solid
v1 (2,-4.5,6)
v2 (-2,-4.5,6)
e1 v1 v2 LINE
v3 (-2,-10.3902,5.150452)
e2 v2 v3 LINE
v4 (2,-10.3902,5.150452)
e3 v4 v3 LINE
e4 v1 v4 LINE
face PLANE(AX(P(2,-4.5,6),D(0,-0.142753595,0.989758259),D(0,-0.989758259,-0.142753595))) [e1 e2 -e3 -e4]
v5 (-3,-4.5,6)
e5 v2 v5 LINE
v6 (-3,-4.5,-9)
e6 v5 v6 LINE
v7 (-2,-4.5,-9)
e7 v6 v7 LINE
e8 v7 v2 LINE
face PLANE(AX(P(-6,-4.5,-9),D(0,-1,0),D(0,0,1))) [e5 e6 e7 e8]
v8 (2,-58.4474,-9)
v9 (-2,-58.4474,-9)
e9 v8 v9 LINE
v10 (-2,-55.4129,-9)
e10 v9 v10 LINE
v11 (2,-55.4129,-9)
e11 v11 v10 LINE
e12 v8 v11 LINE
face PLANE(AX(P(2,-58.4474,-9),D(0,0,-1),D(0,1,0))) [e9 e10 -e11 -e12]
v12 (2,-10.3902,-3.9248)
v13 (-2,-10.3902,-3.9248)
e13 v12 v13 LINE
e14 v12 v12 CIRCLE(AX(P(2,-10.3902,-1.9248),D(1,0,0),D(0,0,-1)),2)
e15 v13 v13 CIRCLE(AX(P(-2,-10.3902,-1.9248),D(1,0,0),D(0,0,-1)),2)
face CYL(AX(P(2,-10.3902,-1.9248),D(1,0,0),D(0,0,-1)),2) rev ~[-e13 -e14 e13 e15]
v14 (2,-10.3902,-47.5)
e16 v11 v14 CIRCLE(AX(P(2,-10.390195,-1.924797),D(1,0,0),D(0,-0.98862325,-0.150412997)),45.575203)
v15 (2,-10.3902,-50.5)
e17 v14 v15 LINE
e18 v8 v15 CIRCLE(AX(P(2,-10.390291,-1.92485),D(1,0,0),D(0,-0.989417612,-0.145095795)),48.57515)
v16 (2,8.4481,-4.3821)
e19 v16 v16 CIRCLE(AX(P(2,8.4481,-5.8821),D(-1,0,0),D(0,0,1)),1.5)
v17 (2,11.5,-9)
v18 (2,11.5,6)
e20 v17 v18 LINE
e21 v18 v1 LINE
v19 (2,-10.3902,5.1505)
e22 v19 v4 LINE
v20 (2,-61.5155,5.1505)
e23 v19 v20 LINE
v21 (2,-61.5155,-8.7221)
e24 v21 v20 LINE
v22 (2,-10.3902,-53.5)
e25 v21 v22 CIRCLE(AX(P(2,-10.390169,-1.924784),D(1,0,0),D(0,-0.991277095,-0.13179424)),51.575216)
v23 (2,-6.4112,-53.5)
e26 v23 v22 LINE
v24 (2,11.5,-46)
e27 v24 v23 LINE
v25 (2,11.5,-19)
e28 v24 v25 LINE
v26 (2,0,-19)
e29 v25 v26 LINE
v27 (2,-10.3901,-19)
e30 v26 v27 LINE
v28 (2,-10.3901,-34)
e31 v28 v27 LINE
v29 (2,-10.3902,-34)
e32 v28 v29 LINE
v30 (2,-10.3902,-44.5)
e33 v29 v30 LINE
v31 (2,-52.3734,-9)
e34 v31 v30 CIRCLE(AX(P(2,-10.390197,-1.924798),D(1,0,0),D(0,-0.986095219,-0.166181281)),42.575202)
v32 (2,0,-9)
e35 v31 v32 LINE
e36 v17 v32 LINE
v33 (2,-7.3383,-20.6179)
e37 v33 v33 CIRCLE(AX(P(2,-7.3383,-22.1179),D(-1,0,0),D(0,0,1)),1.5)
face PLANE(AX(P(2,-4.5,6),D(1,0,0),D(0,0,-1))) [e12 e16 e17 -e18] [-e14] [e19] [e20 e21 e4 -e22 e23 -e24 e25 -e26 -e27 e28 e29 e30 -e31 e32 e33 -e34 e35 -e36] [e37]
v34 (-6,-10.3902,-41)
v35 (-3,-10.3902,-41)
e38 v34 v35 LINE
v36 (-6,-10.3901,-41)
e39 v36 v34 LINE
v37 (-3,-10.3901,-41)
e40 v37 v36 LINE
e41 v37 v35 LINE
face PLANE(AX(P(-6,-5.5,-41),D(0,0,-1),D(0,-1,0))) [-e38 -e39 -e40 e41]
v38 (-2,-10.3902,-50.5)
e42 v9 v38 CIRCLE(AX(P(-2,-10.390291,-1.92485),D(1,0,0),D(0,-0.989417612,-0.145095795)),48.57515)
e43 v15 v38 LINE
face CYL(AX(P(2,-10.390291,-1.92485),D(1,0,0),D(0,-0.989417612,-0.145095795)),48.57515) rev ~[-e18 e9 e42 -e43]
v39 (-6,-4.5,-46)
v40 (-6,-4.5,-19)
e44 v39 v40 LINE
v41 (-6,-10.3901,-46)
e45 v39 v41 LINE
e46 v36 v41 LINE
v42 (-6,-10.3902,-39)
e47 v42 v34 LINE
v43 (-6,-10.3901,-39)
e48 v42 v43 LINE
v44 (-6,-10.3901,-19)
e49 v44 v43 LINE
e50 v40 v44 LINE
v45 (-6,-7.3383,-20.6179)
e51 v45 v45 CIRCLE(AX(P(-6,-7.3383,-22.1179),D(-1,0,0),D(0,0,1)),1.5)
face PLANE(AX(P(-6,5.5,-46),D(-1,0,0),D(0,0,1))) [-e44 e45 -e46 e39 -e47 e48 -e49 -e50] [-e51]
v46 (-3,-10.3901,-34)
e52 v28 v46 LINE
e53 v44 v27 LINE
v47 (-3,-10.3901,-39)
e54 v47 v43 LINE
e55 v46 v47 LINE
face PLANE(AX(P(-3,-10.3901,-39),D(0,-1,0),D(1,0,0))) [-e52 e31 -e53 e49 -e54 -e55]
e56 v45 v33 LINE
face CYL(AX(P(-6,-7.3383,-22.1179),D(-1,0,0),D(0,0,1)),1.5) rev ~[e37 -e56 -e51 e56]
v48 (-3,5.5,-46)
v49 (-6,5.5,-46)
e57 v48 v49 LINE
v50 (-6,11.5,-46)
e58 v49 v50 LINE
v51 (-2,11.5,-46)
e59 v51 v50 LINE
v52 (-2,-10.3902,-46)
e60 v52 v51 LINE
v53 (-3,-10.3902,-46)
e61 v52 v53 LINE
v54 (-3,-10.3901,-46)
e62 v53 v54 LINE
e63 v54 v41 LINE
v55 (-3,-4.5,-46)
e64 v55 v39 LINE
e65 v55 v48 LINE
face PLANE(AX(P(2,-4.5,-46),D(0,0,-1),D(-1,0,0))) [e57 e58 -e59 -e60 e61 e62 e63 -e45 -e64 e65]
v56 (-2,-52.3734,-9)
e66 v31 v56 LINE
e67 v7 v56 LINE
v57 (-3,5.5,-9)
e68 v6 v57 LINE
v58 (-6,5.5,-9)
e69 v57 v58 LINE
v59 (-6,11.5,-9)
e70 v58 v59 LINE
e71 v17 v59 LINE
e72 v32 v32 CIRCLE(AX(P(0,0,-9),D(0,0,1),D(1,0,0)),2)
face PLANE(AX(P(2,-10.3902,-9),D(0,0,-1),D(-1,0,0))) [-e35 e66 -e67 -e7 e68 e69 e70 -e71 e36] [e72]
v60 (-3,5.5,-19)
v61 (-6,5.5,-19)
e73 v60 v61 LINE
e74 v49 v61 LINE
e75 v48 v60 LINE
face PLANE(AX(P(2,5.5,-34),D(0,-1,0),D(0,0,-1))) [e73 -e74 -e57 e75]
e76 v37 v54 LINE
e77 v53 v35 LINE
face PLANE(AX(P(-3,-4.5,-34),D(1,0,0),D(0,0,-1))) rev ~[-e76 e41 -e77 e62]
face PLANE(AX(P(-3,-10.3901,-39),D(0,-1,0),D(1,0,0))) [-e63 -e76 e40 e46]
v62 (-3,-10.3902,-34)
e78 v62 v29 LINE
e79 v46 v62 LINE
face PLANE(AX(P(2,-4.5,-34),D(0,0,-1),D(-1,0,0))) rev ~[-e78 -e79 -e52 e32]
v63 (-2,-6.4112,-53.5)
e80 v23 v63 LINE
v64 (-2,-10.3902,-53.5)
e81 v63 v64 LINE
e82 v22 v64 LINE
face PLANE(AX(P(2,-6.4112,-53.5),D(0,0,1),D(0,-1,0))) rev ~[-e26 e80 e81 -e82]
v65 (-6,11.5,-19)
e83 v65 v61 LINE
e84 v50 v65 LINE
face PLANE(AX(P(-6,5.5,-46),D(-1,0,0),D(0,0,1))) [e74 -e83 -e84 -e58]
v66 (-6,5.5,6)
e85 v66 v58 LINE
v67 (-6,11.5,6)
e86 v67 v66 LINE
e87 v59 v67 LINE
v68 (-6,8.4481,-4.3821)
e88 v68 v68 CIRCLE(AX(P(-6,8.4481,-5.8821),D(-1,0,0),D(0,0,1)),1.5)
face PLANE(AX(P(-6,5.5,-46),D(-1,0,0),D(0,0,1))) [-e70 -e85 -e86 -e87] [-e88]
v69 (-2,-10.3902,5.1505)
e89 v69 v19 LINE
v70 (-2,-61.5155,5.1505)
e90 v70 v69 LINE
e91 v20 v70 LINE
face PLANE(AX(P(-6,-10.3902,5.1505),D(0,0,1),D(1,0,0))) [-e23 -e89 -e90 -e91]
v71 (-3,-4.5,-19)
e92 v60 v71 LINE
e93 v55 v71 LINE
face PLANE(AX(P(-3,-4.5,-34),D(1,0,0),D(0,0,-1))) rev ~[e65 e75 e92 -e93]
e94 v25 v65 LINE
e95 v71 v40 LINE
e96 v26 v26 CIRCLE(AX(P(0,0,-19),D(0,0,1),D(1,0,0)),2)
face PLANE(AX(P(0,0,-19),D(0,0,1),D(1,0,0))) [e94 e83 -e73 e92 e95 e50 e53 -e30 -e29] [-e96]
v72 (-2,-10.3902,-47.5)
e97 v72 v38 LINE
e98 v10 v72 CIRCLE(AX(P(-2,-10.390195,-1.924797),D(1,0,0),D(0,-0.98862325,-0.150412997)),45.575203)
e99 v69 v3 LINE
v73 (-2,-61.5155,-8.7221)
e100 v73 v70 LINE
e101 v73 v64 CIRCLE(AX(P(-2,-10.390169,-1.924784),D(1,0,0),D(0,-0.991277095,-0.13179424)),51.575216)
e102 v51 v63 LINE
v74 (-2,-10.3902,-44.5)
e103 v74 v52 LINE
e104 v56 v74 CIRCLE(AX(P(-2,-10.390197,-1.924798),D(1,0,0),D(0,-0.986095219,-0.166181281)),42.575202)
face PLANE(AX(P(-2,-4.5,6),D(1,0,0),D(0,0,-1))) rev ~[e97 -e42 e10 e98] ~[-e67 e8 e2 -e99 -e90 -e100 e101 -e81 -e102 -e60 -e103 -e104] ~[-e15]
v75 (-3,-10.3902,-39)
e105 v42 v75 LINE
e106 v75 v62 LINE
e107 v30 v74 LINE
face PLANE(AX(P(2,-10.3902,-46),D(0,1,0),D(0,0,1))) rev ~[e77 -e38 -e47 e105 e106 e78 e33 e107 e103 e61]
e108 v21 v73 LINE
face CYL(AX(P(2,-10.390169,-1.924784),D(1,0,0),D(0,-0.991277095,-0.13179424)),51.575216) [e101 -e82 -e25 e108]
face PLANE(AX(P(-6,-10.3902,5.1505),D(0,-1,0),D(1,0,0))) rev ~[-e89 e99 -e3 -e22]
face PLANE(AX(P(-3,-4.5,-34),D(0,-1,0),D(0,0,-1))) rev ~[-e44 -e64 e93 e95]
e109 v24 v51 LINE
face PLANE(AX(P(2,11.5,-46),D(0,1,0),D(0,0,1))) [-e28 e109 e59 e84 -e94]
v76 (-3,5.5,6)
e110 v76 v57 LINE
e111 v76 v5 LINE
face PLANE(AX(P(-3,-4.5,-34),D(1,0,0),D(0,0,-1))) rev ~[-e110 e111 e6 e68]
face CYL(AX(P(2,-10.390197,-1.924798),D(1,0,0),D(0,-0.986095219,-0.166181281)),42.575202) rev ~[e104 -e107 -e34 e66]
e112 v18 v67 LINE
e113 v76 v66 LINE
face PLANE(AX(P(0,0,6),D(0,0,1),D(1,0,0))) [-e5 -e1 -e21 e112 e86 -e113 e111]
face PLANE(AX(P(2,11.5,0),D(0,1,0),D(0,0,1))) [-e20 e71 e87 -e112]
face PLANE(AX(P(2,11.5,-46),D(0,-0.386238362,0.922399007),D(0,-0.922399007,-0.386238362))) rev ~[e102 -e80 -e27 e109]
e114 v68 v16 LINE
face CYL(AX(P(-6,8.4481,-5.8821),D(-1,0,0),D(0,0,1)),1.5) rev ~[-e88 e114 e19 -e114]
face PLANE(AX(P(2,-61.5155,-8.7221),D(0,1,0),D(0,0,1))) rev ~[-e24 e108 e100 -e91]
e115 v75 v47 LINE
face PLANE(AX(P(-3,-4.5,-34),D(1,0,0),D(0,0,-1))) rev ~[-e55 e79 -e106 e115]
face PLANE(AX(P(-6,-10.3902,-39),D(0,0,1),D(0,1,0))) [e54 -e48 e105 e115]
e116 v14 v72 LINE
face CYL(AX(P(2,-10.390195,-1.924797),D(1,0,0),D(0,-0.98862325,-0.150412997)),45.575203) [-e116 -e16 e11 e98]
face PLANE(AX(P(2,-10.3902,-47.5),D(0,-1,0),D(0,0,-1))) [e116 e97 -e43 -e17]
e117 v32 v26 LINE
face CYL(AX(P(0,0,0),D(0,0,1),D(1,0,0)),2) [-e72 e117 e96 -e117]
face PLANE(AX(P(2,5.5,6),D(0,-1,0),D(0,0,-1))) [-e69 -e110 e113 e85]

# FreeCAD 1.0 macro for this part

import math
import FreeCAD as App
import Part
import Sketcher
from FreeCAD import Vector
Q = App.Units.Quantity


def add_polygon(sketch, points):
    """Adds a closed chain of lines whose ends are joined by coincident constraints."""
    first, n = sketch.GeometryCount, len(points)
    for a, b in zip(points, points[1:] + points[:1]):
        sketch.addGeometry(Part.LineSegment(App.Vector(*a, 0), App.Vector(*b, 0)), False)
    for i in range(n):
        sketch.addConstraint(Sketcher.Constraint("Coincident", first + i, 2, first + (i + 1) % n, 1))

doc = App.newDocument("Part")
params = doc.addObject("Spreadsheet::Sheet", "Params")
for row, (alias, value) in enumerate([
    ("sketch1_diameter", "4 mm"),
    ("pad1_length", "40 mm"),
    ("sketch2_height", "9 mm"),
    ("sketch2_width", "5 mm"),
    ("pad2_length", "6 mm"),
    ("sketch3_height", "1 mm"),
    ("sketch3_width", "5 mm"),
    ("pocket1_length", "6 mm"),
    ("sketch4_diameter", "4 mm"),
    ("pocket2_length", "6 mm"),
    ("sketch5_width", "5 mm"),
    ("sketch5_height", "8 mm"),
    ("pad3_length", "12 mm"),
    ("sketch6_width", "5 mm"),
    ("sketch6_height", "12 mm"),
    ("pad4_length", "110 mm"),
    ("sketch7_width", "6 mm"),
    ("sketch7_height", "25 mm"),
    ("sketch7_width2", "8 mm"),
    ("pad5_length", "5 mm"),
    ("sketch8_height", "2 mm"),
    ("sketch8_width", "102 mm"),
    ("sketch9_height", "6 mm"),
    ("sketch9_height2", "5 mm"),
    ("sketch9_height3", "12 mm"),
    ("pad6_length", "3.5 mm"),
    ("sketch10_width", "5 mm"),
    ("sketch10_height", "12 mm"),
    ("sketch10_height2", "6 mm"),
    ("pad7_length", "2 mm"),
    ("sketch11_width", "6 mm"),
    ("sketch11_height", "12 mm"),
    ("pad8_length", "8.5 mm"),
    ("sketch12_width", "6 mm"),
    ("sketch12_height", "12 mm"),
    ("sketch12_height2", "2 mm"),
    ("pocket4_length", "0.5 mm"),
    ("sketch13_width", "8 mm"),
    ("sketch13_width2", "3 mm"),
    ("sketch13_height", "6 mm"),
    ("sketch13_height2", "10 mm"),
    ("pad9_length", "15 mm"),
    ("sketch14_width", "3 mm"),
    ("sketch14_width2", "8 mm"),
    ("sketch14_height", "6 mm"),
    ("sketch14_height2", "10 mm"),
    ("pad10_length", "9 mm"),
    ("sketch15_width", "8 mm"),
    ("sketch15_width2", "3 mm"),
    ("sketch15_height", "20 mm"),
    ("pocket5_length", "4.2273 mm"),
    ("sketch16_height", "2 mm"),
    ("pad11_length", "8 mm"),
    ("sketch17_height", "52 mm"),
    ("sketch17_height2", "5 mm"),
    ("sketch17_height3", "2 mm"),
    ("sketch18_width", "8 mm"),
    ("pad12_length", "40 mm"),
    ("sketch19_width", "40 mm"),
    ("pocket7_length", "2 mm"),
    ("sketch20_height", "6 mm"),
    ("sketch20_height2", "3 mm"),
    ("pad13_length", "4 mm"),
    ("sketch21_height", "1.5 mm"),
    ("pad14_length", "4 mm"),
    ("sketch22_height", "7.5 mm"),
    ("pad15_length", "4 mm"),
    ("sketch23_diameter", "3 mm"),
    ("sketch24_diameter", "4 mm"),
    ("sketch25_radius", "2 mm"),
    ("pocket10_length", "2 mm"),
    ("sketch26_width", "40 mm"),
    ("pocket11_length", "2 mm"),
    ("sketch27_height", "15 mm"),
    ("pocket12_length", "4 mm"),
], start=1):
    params.set(f"A{row}", alias)
    params.set(f"B{row}", "=" + value)
    params.setAlias(f"B{row}", alias)

body = doc.addObject("PartDesign::Body", "Body")

sketch1 = body.newObject("Sketcher::SketchObject", "Sketch")
sketch1.AttachmentSupport = (doc.getObject("XY_Plane"), [""])
sketch1.MapMode = "FlatFace"
sketch1.addGeometry(Part.Circle(Vector(0, 0, 0), Vector(0, 0, 1), 2), False)
sketch1.addConstraint([
    Sketcher.Constraint("Coincident", 0, 3, -1, 1),
    Sketcher.Constraint("Diameter", 0, 4.0),
])
sketch1.setExpression("Constraints[1]", "Params.sketch1_diameter")
pad1 = body.newObject("PartDesign::Pad", "Pad")
pad1.Profile = sketch1
pad1.setExpression("Length", "Params.pad1_length")
pad1.Reversed = True

sketch2 = body.newObject("Sketcher::SketchObject", "Sketch001")
sketch2.AttachmentSupport = (doc.getObject("XY_Plane"), [""])
sketch2.MapMode = "FlatFace"
add_polygon(sketch2, [(2, -4), (2, 4), (-3, 4), (-3, -4)])
sketch2.addConstraint([
    Sketcher.Constraint("Vertical", 0),
    Sketcher.Constraint("Horizontal", 1),
    Sketcher.Constraint("Vertical", 2),
    Sketcher.Constraint("Horizontal", 3),
    Sketcher.Constraint("DistanceY", 0, 1, 0, 2, 9.0),
    Sketcher.Constraint("DistanceX", 1, 2, -1, 1, 3.0),
    Sketcher.Constraint("DistanceY", -1, 1, 0, 2, 4.5),
    Sketcher.Constraint("DistanceX", 1, 2, 1, 1, 5.0),
])
sketch2.setExpression("Constraints[8]", "Params.sketch2_height")
sketch2.setExpression("Constraints[11]", "Params.sketch2_width")
pad2 = body.newObject("PartDesign::Pad", "Pad001")
pad2.Profile = sketch2
pad2.setExpression("Length", "Params.pad2_length")

sketch3 = body.newObject("Sketcher::SketchObject", "Sketch002")
sketch3.AttachmentSupport = (doc.getObject("XY_Plane"), [""])
sketch3.MapMode = "FlatFace"
sketch3.AttachmentOffset = App.Placement(Vector(0, 0, 6), App.Rotation())
add_polygon(sketch3, [(-3, 3.5), (2, 3.5), (2, 4.5), (-3, 4.5)])
sketch3.addConstraint([
    Sketcher.Constraint("Horizontal", 0),
    Sketcher.Constraint("Vertical", 1),
    Sketcher.Constraint("Horizontal", 2),
    Sketcher.Constraint("Vertical", 3),
    Sketcher.Constraint("DistanceY", 1, 1, 1, 2, 1.0),
    Sketcher.Constraint("DistanceX", 0, 1, 0, 2, 5.0),
    Sketcher.Constraint("DistanceX", -1, 1, 0, 2, 2.0),
    Sketcher.Constraint("DistanceY", -1, 1, 0, 2, 3.5),
])
sketch3.setExpression("Constraints[8]", "Params.sketch3_height")
sketch3.setExpression("Constraints[9]", "Params.sketch3_width")
pocket1 = body.newObject("PartDesign::Pocket", "Pocket")
pocket1.Profile = sketch3
pocket1.setExpression("Length", "Params.pocket1_length")

sketch4 = body.newObject("Sketcher::SketchObject", "Sketch003")
sketch4.AttachmentSupport = (doc.getObject("XY_Plane"), [""])
sketch4.MapMode = "FlatFace"
sketch4.AttachmentOffset = App.Placement(Vector(0, 0, -40), App.Rotation())
sketch4.addGeometry(Part.Circle(Vector(0, 0, 0), Vector(0, 0, 1), 2), False)
sketch4.addConstraint([
    Sketcher.Constraint("Coincident", 0, 3, -1, 1),
    Sketcher.Constraint("Diameter", 0, 4.0),
])
sketch4.setExpression("Constraints[1]", "Params.sketch4_diameter")
pocket2 = body.newObject("PartDesign::Pocket", "Pocket001")
pocket2.Profile = sketch4
pocket2.setExpression("Length", "Params.pocket2_length")
pocket2.Reversed = True

sketch5 = body.newObject("Sketcher::SketchObject", "Sketch004")
sketch5.AttachmentSupport = (doc.getObject("XY_Plane"), [""])
sketch5.MapMode = "FlatFace"
sketch5.AttachmentOffset = App.Placement(Vector(0, 0, -34), App.Rotation())
add_polygon(sketch5, [(-3, -4), (-3, 4), (2, 4), (2, -4)])
sketch5.addConstraint([
    Sketcher.Constraint("Vertical", 0),
    Sketcher.Constraint("Horizontal", 1),
    Sketcher.Constraint("Vertical", 2),
    Sketcher.Constraint("Horizontal", 3),
    Sketcher.Constraint("DistanceX", 1, 1, 1, 2, 5.0),
    Sketcher.Constraint("DistanceY", 0, 1, 0, 2, 8.0),
    Sketcher.Constraint("DistanceX", 0, 2, -1, 1, 3.0),
    Sketcher.Constraint("DistanceY", -1, 1, 0, 2, 3.5),
])
sketch5.setExpression("Constraints[8]", "Params.sketch5_width")
sketch5.setExpression("Constraints[9]", "Params.sketch5_height")
pad3 = body.newObject("PartDesign::Pad", "Pad002")
pad3.Profile = sketch5
pad3.setExpression("Length", "Params.pad3_length")
pad3.Reversed = True

sketch6 = body.newObject("Sketcher::SketchObject", "Sketch005")
sketch6.AttachmentSupport = (doc.getObject("XZ_Plane"), [""])
sketch6.MapMode = "FlatFace"
sketch6.AttachmentOffset = App.Placement(Vector(0, 0, 4.5), App.Rotation())
add_polygon(sketch6, [(2, -46), (2, -34), (-3, -34), (-3, -46)])
sketch6.addConstraint([
    Sketcher.Constraint("Vertical", 0),
    Sketcher.Constraint("Horizontal", 1),
    Sketcher.Constraint("Vertical", 2),
    Sketcher.Constraint("Horizontal", 3),
    Sketcher.Constraint("DistanceX", 1, 2, 1, 1, 5.0),
    Sketcher.Constraint("DistanceY", 0, 1, 0, 2, 12.0),
    Sketcher.Constraint("DistanceX", -1, 1, 0, 2, 2.0),
    Sketcher.Constraint("DistanceY", 0, 2, -1, 1, 34.0),
])
sketch6.setExpression("Constraints[8]", "Params.sketch6_width")
sketch6.setExpression("Constraints[9]", "Params.sketch6_height")
pad4 = body.newObject("PartDesign::Pad", "Pad003")
pad4.Profile = sketch6
pad4.setExpression("Length", "Params.pad4_length")

sketch7 = body.newObject("Sketcher::SketchObject", "Sketch006")
sketch7.AttachmentSupport = (doc.getObject("YZ_Plane"), [""])
sketch7.MapMode = "FlatFace"
sketch7.AttachmentOffset = App.Placement(Vector(0, 0, 2), App.Rotation())
add_polygon(sketch7, [(-114, -34), (-108, -34), (-108, -15), (-4, 0), (4, 0), (4, 6), (-4, 6), (-108, -9), (-114, -9)])
sketch7.addConstraint([
    Sketcher.Constraint("Horizontal", 0),
    Sketcher.Constraint("Vertical", 1),
    Sketcher.Constraint("Horizontal", 3),
    Sketcher.Constraint("Vertical", 4),
    Sketcher.Constraint("Horizontal", 5),
    Sketcher.Constraint("Horizontal", 7),
    Sketcher.Constraint("Vertical", 8),
    Sketcher.Constraint("PointOnObject", 2, 2, -1),
    Sketcher.Constraint("Parallel", 2, 6),
    Sketcher.Constraint("Vertical", 2, 2, 5, 2),
    Sketcher.Constraint("Vertical", 1, 2, 6, 2),
    Sketcher.Constraint("Equal", 7, 4),
    Sketcher.Constraint("DistanceX", 0, 1, 0, 2, 6.0),
    Sketcher.Constraint("DistanceY", 8, 2, 8, 1, 25.0),
    Sketcher.Constraint("DistanceX", 3, 1, 3, 2, 8.0),
    Sketcher.Constraint("DistanceY", 0, 2, -1, 1, 34.0),
    Sketcher.Constraint("DistanceX", 1, 2, 2, 2, 104.0),
    Sketcher.Constraint("DistanceX", 0, 2, -1, 1, 108.5),
])
sketch7.setExpression("Constraints[21]", "Params.sketch7_width")
sketch7.setExpression("Constraints[22]", "Params.sketch7_height")
sketch7.setExpression("Constraints[23]", "Params.sketch7_width2")
pad5 = body.newObject("PartDesign::Pad", "Pad004")
pad5.Profile = sketch7
pad5.setExpression("Length", "Params.pad5_length")
pad5.Reversed = True

sketch8 = body.newObject("Sketcher::SketchObject", "Sketch007")
sketch8.AttachmentSupport = (doc.getObject("YZ_Plane"), [""])
sketch8.MapMode = "FlatFace"
sketch8.AttachmentOffset = App.Placement(Vector(0, 0, 2), App.Rotation())
add_polygon(sketch8, [(-6.5, -41), (-6.5, -39), (-108.5, -39), (-108.5, -41)])
sketch8.addConstraint([
    Sketcher.Constraint("Vertical", 0),
    Sketcher.Constraint("Horizontal", 1),
    Sketcher.Constraint("Vertical", 2),
    Sketcher.Constraint("Horizontal", 3),
    Sketcher.Constraint("DistanceY", 0, 1, 0, 2, 2.0),
    Sketcher.Constraint("DistanceX", 1, 2, 1, 1, 102.0),
    Sketcher.Constraint("DistanceY", 0, 2, -1, 1, 39.0),
    Sketcher.Constraint("DistanceX", 0, 2, -1, 1, 6.5),
])
sketch8.setExpression("Constraints[8]", "Params.sketch8_height")
sketch8.setExpression("Constraints[9]", "Params.sketch8_width")
pocket3 = body.newObject("PartDesign::Pocket", "Pocket002")
pocket3.Profile = sketch8
pocket3.Type = "ThroughAll"

sketch9 = body.newObject("Sketcher::SketchObject", "Sketch008")
sketch9.AttachmentSupport = (doc.getObject("YZ_Plane"), [""])
sketch9.MapMode = "FlatFace"
sketch9.AttachmentOffset = App.Placement(Vector(0, 0, -3), App.Rotation())
add_polygon(sketch9, [(-10.4, 5.2), (-4.5, 6), (-4.5, 0), (-10.4, -0.8)])
add_polygon(sketch9, [(-14.6, -39), (-14.6, -34), (-4.5, -34), (-4.5, -46), (-14.6, -46), (-14.6, -41), (-5.5, -41), (-5.5, -39)])
sketch9.addConstraint([
    Sketcher.Constraint("Vertical", 1),
    Sketcher.Constraint("Vertical", 3),
    Sketcher.Constraint("Vertical", 4),
    Sketcher.Constraint("Horizontal", 5),
    Sketcher.Constraint("Vertical", 6),
    Sketcher.Constraint("Horizontal", 7),
    Sketcher.Constraint("Vertical", 8),
    Sketcher.Constraint("Horizontal", 9),
    Sketcher.Constraint("Vertical", 10),
    Sketcher.Constraint("Horizontal", 11),
    Sketcher.Constraint("PointOnObject", 1, 2, -1),
    Sketcher.Constraint("Parallel", 0, 2),
    Sketcher.Constraint("Vertical", 1, 2, 5, 2),
    Sketcher.Constraint("Vertical", 4, 2, 7, 2),
    Sketcher.Constraint("Equal", 4, 8),
    Sketcher.Constraint("DistanceY", 1, 2, 1, 1, 6.0),
    Sketcher.Constraint("DistanceY", 4, 1, 4, 2, 5.0),
    Sketcher.Constraint("DistanceY", 6, 2, 6, 1, 12.0),
    Sketcher.Constraint("DistanceY", 4, 2, -1, 1, 34.0),
    Sketcher.Constraint("DistanceX", 9, 2, 6, 2, 1.0),
    Sketcher.Constraint("DistanceX", 0, 2, -1, 1, 4.5),
    Sketcher.Constraint("DistanceX", 5, 1, 5, 2, 10.1174),
    Sketcher.Constraint("Distance", 0, 5.9511),
    Sketcher.Constraint("DistanceX", 2, 2, -1, 1, 10.3902),
])
sketch9.setExpression("Constraints[27]", "Params.sketch9_height")
sketch9.setExpression("Constraints[28]", "Params.sketch9_height2")
sketch9.setExpression("Constraints[29]", "Params.sketch9_height3")
pad6 = body.newObject("PartDesign::Pad", "Pad005")
pad6.Profile = sketch9
pad6.setExpression("Length", "Params.pad6_length")
pad6.Reversed = True

sketch10 = body.newObject("Sketcher::SketchObject", "Sketch009")
sketch10.AttachmentSupport = (doc.getObject("XZ_Plane"), [""])
sketch10.MapMode = "FlatFace"
sketch10.AttachmentOffset = App.Placement(Vector(0, 0, -3.5), App.Rotation())
add_polygon(sketch10, [(-3, -46), (-3, -34), (2, -34), (2, -46)])
add_polygon(sketch10, [(-3, 6), (2, 6), (2, 0), (-3, 0)])
sketch10.addConstraint([
    Sketcher.Constraint("Vertical", 0),
    Sketcher.Constraint("Horizontal", 1),
    Sketcher.Constraint("Vertical", 2),
    Sketcher.Constraint("Horizontal", 3),
    Sketcher.Constraint("Horizontal", 4),
    Sketcher.Constraint("Vertical", 5),
    Sketcher.Constraint("Horizontal", 6),
    Sketcher.Constraint("Vertical", 7),
    Sketcher.Constraint("PointOnObject", 5, 2, -1),
    Sketcher.Constraint("Vertical", 2, 2, 4, 2),
    Sketcher.Constraint("Vertical", 3, 2, 6, 2),
    Sketcher.Constraint("DistanceX", 1, 1, 1, 2, 5.0),
    Sketcher.Constraint("DistanceY", 0, 1, 0, 2, 12.0),
    Sketcher.Constraint("DistanceY", 5, 2, 5, 1, 6.0),
    Sketcher.Constraint("DistanceX", 0, 2, -1, 1, 3.0),
    Sketcher.Constraint("DistanceY", 0, 2, -1, 1, 34.0),
])
sketch10.setExpression("Constraints[19]", "Params.sketch10_width")
sketch10.setExpression("Constraints[20]", "Params.sketch10_height")
sketch10.setExpression("Constraints[21]", "Params.sketch10_height2")
pad7 = body.newObject("PartDesign::Pad", "Pad006")
pad7.Profile = sketch10
pad7.setExpression("Length", "Params.pad7_length")
pad7.Reversed = True

sketch11 = body.newObject("Sketcher::SketchObject", "Sketch010")
sketch11.AttachmentSupport = (doc.getObject("YZ_Plane"), [""])
sketch11.MapMode = "FlatFace"
sketch11.AttachmentOffset = App.Placement(Vector(0, 0, 2), App.Rotation())
add_polygon(sketch11, [(12, 6), (6, 6), (6, 0), (12, 0)])
add_polygon(sketch11, [(6, -34), (6, -46), (12, -46), (12, -34)])
sketch11.addConstraint([
    Sketcher.Constraint("Horizontal", 0),
    Sketcher.Constraint("Vertical", 1),
    Sketcher.Constraint("Horizontal", 2),
    Sketcher.Constraint("Vertical", 3),
    Sketcher.Constraint("Vertical", 4),
    Sketcher.Constraint("Horizontal", 5),
    Sketcher.Constraint("Vertical", 6),
    Sketcher.Constraint("Horizontal", 7),
    Sketcher.Constraint("PointOnObject", 1, 2, -1),
    Sketcher.Constraint("Vertical", 1, 2, 4, 2),
    Sketcher.Constraint("Vertical", 3, 2, 5, 2),
    Sketcher.Constraint("Equal", 7, 1),
    Sketcher.Constraint("DistanceX", 0, 2, 0, 1, 6.0),
    Sketcher.Constraint("DistanceY", 4, 2, 4, 1, 12.0),
    Sketcher.Constraint("DistanceY", 4, 2, -1, 1, 46.0),
    Sketcher.Constraint("DistanceX", -1, 1, 0, 2, 5.5),
])
sketch11.setExpression("Constraints[20]", "Params.sketch11_width")
sketch11.setExpression("Constraints[21]", "Params.sketch11_height")
pad8 = body.newObject("PartDesign::Pad", "Pad007")
pad8.Profile = sketch11
pad8.setExpression("Length", "Params.pad8_length")
pad8.Reversed = True

sketch12 = body.newObject("Sketcher::SketchObject", "Sketch011")
sketch12.AttachmentSupport = (doc.getObject("YZ_Plane"), [""])
sketch12.MapMode = "FlatFace"
sketch12.AttachmentOffset = App.Placement(Vector(0, 0, -6.5), App.Rotation())
add_polygon(sketch12, [(11.5, -46), (5.5, -46), (5.5, -34), (11.5, -34)])
add_polygon(sketch12, [(-14.6, -41), (-5.5, -41), (-5.5, -39), (-14.6, -39), (-14.6, -34), (-4.5, -34), (-4.5, -46), (-14.6, -46)])
add_polygon(sketch12, [(-10.4, 5.2), (-4.5, 6), (-4.5, 0), (-10.4, -0.8)])
add_polygon(sketch12, [(11.5, 0), (5.5, 0), (5.5, 6), (11.5, 6)])
sketch12.addConstraint([
    Sketcher.Constraint("Horizontal", 0),
    Sketcher.Constraint("Vertical", 1),
    Sketcher.Constraint("Horizontal", 2),
    Sketcher.Constraint("Vertical", 3),
    Sketcher.Constraint("Horizontal", 4),
    Sketcher.Constraint("Vertical", 5),
    Sketcher.Constraint("Horizontal", 6),
    Sketcher.Constraint("Vertical", 7),
    Sketcher.Constraint("Horizontal", 8),
    Sketcher.Constraint("Vertical", 9),
    Sketcher.Constraint("Horizontal", 10),
    Sketcher.Constraint("Vertical", 11),
    Sketcher.Constraint("Vertical", 13),
    Sketcher.Constraint("Vertical", 15),
    Sketcher.Constraint("Horizontal", 16),
    Sketcher.Constraint("Vertical", 17),
    Sketcher.Constraint("Horizontal", 18),
    Sketcher.Constraint("Vertical", 19),
    Sketcher.Constraint("PointOnObject", 13, 2, -1),
    Sketcher.Constraint("PointOnObject", 16, 2, -1),
    Sketcher.Constraint("Parallel", 12, 14),
    Sketcher.Constraint("Horizontal", 2, 2, 7, 2),
    Sketcher.Constraint("Horizontal", 3, 2, 9, 2),
    Sketcher.Constraint("Horizontal", 12, 2, 17, 2),
    Sketcher.Constraint("Vertical", 7, 2, 10, 2),
    Sketcher.Constraint("Vertical", 9, 2, 12, 2),
    Sketcher.Constraint("Vertical", 1, 2, 16, 2),
    Sketcher.Constraint("Vertical", 3, 2, 18, 2),
    Sketcher.Constraint("Equal", 7, 11),
    Sketcher.Constraint("Equal", 18, 13),
    Sketcher.Constraint("DistanceX", 0, 2, 0, 1, 6.0),
    Sketcher.Constraint("DistanceY", 1, 1, 1, 2, 12.0),
    Sketcher.Constraint("DistanceY", 5, 1, 5, 2, 2.0),
    Sketcher.Constraint("DistanceY", 0, 2, -1, 1, 46.0),
    Sketcher.Constraint("DistanceX", 4, 2, 0, 2, 11.0),
    Sketcher.Constraint("DistanceX", 5, 2, 8, 2, 1.0),
    Sketcher.Constraint("DistanceX", -1, 1, 0, 2, 5.5),
    Sketcher.Constraint("DistanceX", 4, 1, 4, 2, 9.1174),
    Sketcher.Constraint("Distance", 12, 5.9511),
    Sketcher.Constraint("DistanceX", 14, 2, -1, 1, 10.3902),
])
sketch12.setExpression("Constraints[50]", "Params.sketch12_width")
sketch12.setExpression("Constraints[51]", "Params.sketch12_height")
sketch12.setExpression("Constraints[52]", "Params.sketch12_height2")
pocket4 = body.newObject("PartDesign::Pocket", "Pocket003")
pocket4.Profile = sketch12
pocket4.setExpression("Length", "Params.pocket4_length")
pocket4.Reversed = True

sketch13 = body.newObject("Sketcher::SketchObject", "Sketch012")
sketch13.AttachmentSupport = (doc.getObject("XY_Plane"), [""])
sketch13.MapMode = "FlatFace"
sketch13.AttachmentOffset = App.Placement(Vector(0, 0, -34), App.Rotation())
add_polygon(sketch13, [(2, 11.5), (-6, 11.5), (-6, 5.5), (-3, 5.5), (-3, -4.5), (-6, -4.5), (-6, -14.6), (2, -14.6)])
sketch13.addConstraint([
    Sketcher.Constraint("Horizontal", 0),
    Sketcher.Constraint("Vertical", 1),
    Sketcher.Constraint("Horizontal", 2),
    Sketcher.Constraint("Vertical", 3),
    Sketcher.Constraint("Horizontal", 4),
    Sketcher.Constraint("Vertical", 5),
    Sketcher.Constraint("Horizontal", 6),
    Sketcher.Constraint("Vertical", 7),
    Sketcher.Constraint("Vertical", 1, 2, 4, 2),
    Sketcher.Constraint("DistanceX", 0, 2, 0, 1, 8.0),
    Sketcher.Constraint("DistanceX", 2, 1, 2, 2, 3.0),
    Sketcher.Constraint("DistanceY", 1, 2, 1, 1, 6.0),
    Sketcher.Constraint("DistanceY", 3, 2, 3, 1, 10.0),
    Sketcher.Constraint("DistanceX", 0, 2, -1, 1, 6.0),
    Sketcher.Constraint("DistanceY", -1, 1, 0, 2, 11.5),
    Sketcher.Constraint("DistanceY", 5, 2, 5, 1, 10.1174),
])
sketch13.setExpression("Constraints[17]", "Params.sketch13_width")
sketch13.setExpression("Constraints[18]", "Params.sketch13_width2")
sketch13.setExpression("Constraints[19]", "Params.sketch13_height")
sketch13.setExpression("Constraints[20]", "Params.sketch13_height2")
pad9 = body.newObject("PartDesign::Pad", "Pad008")
pad9.Profile = sketch13
pad9.setExpression("Length", "Params.pad9_length")

sketch14 = body.newObject("Sketcher::SketchObject", "Sketch013")
sketch14.AttachmentSupport = (doc.getObject("XY_Plane"), [""])
sketch14.MapMode = "FlatFace"
add_polygon(sketch14, [(-3, 5.5), (-6, 5.5), (-6, 11.5), (2, 11.5), (2, -10.4), (-6, -10.4), (-6, -4.5), (-3, -4.5)])
sketch14.addConstraint([
    Sketcher.Constraint("Horizontal", 0),
    Sketcher.Constraint("Vertical", 1),
    Sketcher.Constraint("Horizontal", 2),
    Sketcher.Constraint("Vertical", 3),
    Sketcher.Constraint("Horizontal", 4),
    Sketcher.Constraint("Vertical", 5),
    Sketcher.Constraint("Horizontal", 6),
    Sketcher.Constraint("Vertical", 7),
    Sketcher.Constraint("Vertical", 1, 2, 4, 2),
    Sketcher.Constraint("DistanceX", 0, 2, 0, 1, 3.0),
    Sketcher.Constraint("DistanceX", 2, 1, 2, 2, 8.0),
    Sketcher.Constraint("DistanceY", 1, 1, 1, 2, 6.0),
    Sketcher.Constraint("DistanceY", 7, 1, 7, 2, 10.0),
    Sketcher.Constraint("DistanceX", 0, 2, -1, 1, 6.0),
    Sketcher.Constraint("DistanceY", -1, 1, 0, 2, 5.5),
    Sketcher.Constraint("DistanceY", 3, 2, 3, 1, 21.8902),
])
sketch14.setExpression("Constraints[17]", "Params.sketch14_width")
sketch14.setExpression("Constraints[18]", "Params.sketch14_width2")
sketch14.setExpression("Constraints[19]", "Params.sketch14_height")
sketch14.setExpression("Constraints[20]", "Params.sketch14_height2")
pad10 = body.newObject("PartDesign::Pad", "Pad009")
pad10.Profile = sketch14
pad10.setExpression("Length", "Params.pad10_length")
pad10.Reversed = True

sketch15 = body.newObject("Sketcher::SketchObject", "Sketch014")
sketch15.AttachmentSupport = (doc.getObject("XZ_Plane"), [""])
sketch15.MapMode = "FlatFace"
sketch15.AttachmentOffset = App.Placement(Vector(0, 0, 14.6174), App.Rotation())
add_polygon(sketch15, [(2, -19), (-6, -19), (-6, -39), (-3, -39), (-3, -34), (2, -34)])
add_polygon(sketch15, [(-3, -41), (-6, -41), (-6, -46), (-3, -46)])
sketch15.addConstraint([
    Sketcher.Constraint("Horizontal", 0),
    Sketcher.Constraint("Vertical", 1),
    Sketcher.Constraint("Horizontal", 2),
    Sketcher.Constraint("Vertical", 3),
    Sketcher.Constraint("Horizontal", 4),
    Sketcher.Constraint("Vertical", 5),
    Sketcher.Constraint("Horizontal", 6),
    Sketcher.Constraint("Vertical", 7),
    Sketcher.Constraint("Horizontal", 8),
    Sketcher.Constraint("Vertical", 9),
    Sketcher.Constraint("Vertical", 1, 2, 6, 2),
    Sketcher.Constraint("Vertical", 3, 2, 8, 2),
    Sketcher.Constraint("Equal", 4, 3),
    Sketcher.Constraint("Equal", 3, 7),
    Sketcher.Constraint("DistanceX", 0, 2, 0, 1, 8.0),
    Sketcher.Constraint("DistanceX", 2, 1, 2, 2, 3.0),
    Sketcher.Constraint("DistanceY", 1, 2, 1, 1, 20.0),
    Sketcher.Constraint("DistanceX", 0, 2, -1, 1, 6.0),
    Sketcher.Constraint("DistanceY", 0, 2, -1, 1, 19.0),
    Sketcher.Constraint("DistanceY", 6, 2, -1, 1, 41.0),
])
sketch15.setExpression("Constraints[24]", "Params.sketch15_width")
sketch15.setExpression("Constraints[25]", "Params.sketch15_width2")
sketch15.setExpression("Constraints[26]", "Params.sketch15_height")
pocket5 = body.newObject("PartDesign::Pocket", "Pocket004")
pocket5.Profile = sketch15
pocket5.setExpression("Length", "Params.pocket5_length")

sketch16 = body.newObject("Sketcher::SketchObject", "Sketch015")
sketch16.AttachmentSupport = (doc.getObject("YZ_Plane"), [""])
sketch16.MapMode = "FlatFace"
sketch16.AttachmentOffset = App.Placement(Vector(0, 0, -6), App.Rotation())
add_polygon(sketch16, [(-5.5, -41), (-10.4, -41), (-10.4, -39), (-5.5, -39)])
sketch16.addConstraint([
    Sketcher.Constraint("Horizontal", 0),
    Sketcher.Constraint("Vertical", 1),
    Sketcher.Constraint("Horizontal", 2),
    Sketcher.Constraint("Vertical", 3),
    Sketcher.Constraint("DistanceY", 1, 1, 1, 2, 2.0),
    Sketcher.Constraint("DistanceY", 0, 2, -1, 1, 41.0),
    Sketcher.Constraint("DistanceX", 2, 2, -1, 1, 5.5),
    Sketcher.Constraint("DistanceX", 0, 2, 0, 1, 4.8902),
])
sketch16.setExpression("Constraints[8]", "Params.sketch16_height")
pad11 = body.newObject("PartDesign::Pad", "Pad010")
pad11.Profile = sketch16
pad11.setExpression("Length", "Params.pad11_length")

sketch17 = body.newObject("Sketcher::SketchObject", "Sketch016")
sketch17.AttachmentSupport = (doc.getObject("YZ_Plane"), [""])
sketch17.MapMode = "FlatFace"
sketch17.AttachmentOffset = App.Placement(Vector(0, 0, 2), App.Rotation())
add_polygon(sketch17, [(-10.4, 6), (-114.5, 6), (-114.5, -46), (-10.4, -46), (-10.4, -41), (-108.5, -41), (-108.5, -39), (-10.4, -39)])
sketch17.addConstraint([
    Sketcher.Constraint("Horizontal", 0),
    Sketcher.Constraint("Vertical", 1),
    Sketcher.Constraint("Horizontal", 2),
    Sketcher.Constraint("Vertical", 3),
    Sketcher.Constraint("Horizontal", 4),
    Sketcher.Constraint("Vertical", 5),
    Sketcher.Constraint("Horizontal", 6),
    Sketcher.Constraint("Vertical", 7),
    Sketcher.Constraint("Vertical", 3, 2, 6, 2),
    Sketcher.Constraint("DistanceY", 1, 2, 1, 1, 52.0),
    Sketcher.Constraint("DistanceY", 3, 1, 3, 2, 5.0),
    Sketcher.Constraint("DistanceY", 5, 1, 5, 2, 2.0),
    Sketcher.Constraint("DistanceY", -1, 1, 0, 2, 6.0),
    Sketcher.Constraint("DistanceX", 1, 2, 4, 2, 6.0),
    Sketcher.Constraint("DistanceX", 0, 2, -1, 1, 114.5),
    Sketcher.Constraint("DistanceX", 0, 2, 0, 1, 104.1098),
])
sketch17.setExpression("Constraints[17]", "Params.sketch17_height")
sketch17.setExpression("Constraints[18]", "Params.sketch17_height2")
sketch17.setExpression("Constraints[19]", "Params.sketch17_height3")
pocket6 = body.newObject("PartDesign::Pocket", "Pocket005")
pocket6.Profile = sketch17
pocket6.Type = "ThroughAll"

sketch18 = body.newObject("Sketcher::SketchObject", "Sketch017")
sketch18.AttachmentSupport = (doc.getObject("XZ_Plane"), [""])
sketch18.MapMode = "FlatFace"
sketch18.AttachmentOffset = App.Placement(Vector(0, 0, 10.3902), App.Rotation())
add_polygon(sketch18, [(2, 5), (-6, 5), (-6, -9), (2, -9)])
sketch18.addConstraint([
    Sketcher.Constraint("Horizontal", 0),
    Sketcher.Constraint("Vertical", 1),
    Sketcher.Constraint("Horizontal", 2),
    Sketcher.Constraint("Vertical", 3),
    Sketcher.Constraint("DistanceX", 0, 2, 0, 1, 8.0),
    Sketcher.Constraint("DistanceX", 0, 2, -1, 1, 6.0),
    Sketcher.Constraint("DistanceY", 1, 2, -1, 1, 9.0),
    Sketcher.Constraint("DistanceY", 1, 2, 1, 1, 14.1505),
])
sketch18.setExpression("Constraints[8]", "Params.sketch18_width")
pad12 = body.newObject("PartDesign::Pad", "Pad011")
pad12.Profile = sketch18
pad12.setExpression("Length", "Params.pad12_length")

sketch19 = body.newObject("Sketcher::SketchObject", "Sketch018")
sketch19.AttachmentSupport = (doc.getObject("YZ_Plane"), [""])
sketch19.MapMode = "FlatFace"
sketch19.AttachmentOffset = App.Placement(Vector(0, 0, -6), App.Rotation())
add_polygon(sketch19, [(-50, 5), (-10, 5), (-10, -9), (-50, -9)])
sketch19.addConstraint([
    Sketcher.Constraint("Horizontal", 0),
    Sketcher.Constraint("Vertical", 1),
    Sketcher.Constraint("Horizontal", 2),
    Sketcher.Constraint("Vertical", 3),
    Sketcher.Constraint("DistanceX", 0, 1, 0, 2, 40.0),
    Sketcher.Constraint("DistanceY", 1, 2, -1, 1, 9.0),
    Sketcher.Constraint("DistanceY", 1, 2, 1, 1, 14.1505),
    Sketcher.Constraint("DistanceX", 0, 2, -1, 1, 10.3902),
])
sketch19.setExpression("Constraints[8]", "Params.sketch19_width")
pocket7 = body.newObject("PartDesign::Pocket", "Pocket006")
pocket7.Profile = sketch19
pocket7.setExpression("Length", "Params.pocket7_length")
pocket7.Reversed = True

sketch20 = body.newObject("Sketcher::SketchObject", "Sketch019")
sketch20.AttachmentSupport = (doc.getObject("YZ_Plane"), [""])
sketch20.MapMode = "FlatFace"
sketch20.AttachmentOffset = App.Placement(Vector(0, 0, 2), App.Rotation())
sketch20.addGeometry([
    Part.LineSegment(Vector(-53.9, -9, 0), Vector(-50.4, -9, 0)),
    Part.LineSegment(Vector(-50.4, -9, 0), Vector(-50.4, 5.2, 0)),
    Part.LineSegment(Vector(-50.4, 5.2, 0), Vector(-60, 5.2, 0)),
    Part.LineSegment(Vector(-60, 5.2, 0), Vector(-60, -9, 0)),
    Part.ArcOfCircle(Part.Circle(Vector(-10.4, -1.9, 0), Vector(0, 0, 1), 50.1), math.radians(-172), math.radians(-90)),
    Part.LineSegment(Vector(-10.4, -52, 0), Vector(-6.4, -52, 0)),
    Part.LineSegment(Vector(-6.4, -52, 0), Vector(-6.4, -46, 0)),
    Part.LineSegment(Vector(-6.4, -46, 0), Vector(-10.4, -46, 0)),
    Part.ArcOfCircle(Part.Circle(Vector(-10.4, -1.9, 0), Vector(0, 0, 1), 44.1), math.radians(-171), math.radians(-90)),
    Part.LineSegment(Vector(-58.4, -9, 0), Vector(-55.4, -9, 0)),
    Part.ArcOfCircle(Part.Circle(Vector(-10.4, -1.9, 0), Vector(0, 0, 1), 45.6), math.radians(-171), math.radians(-90)),
    Part.LineSegment(Vector(-10.4, -47.5, 0), Vector(-10.4, -50.5, 0)),
    Part.ArcOfCircle(Part.Circle(Vector(-10.4, -1.9, 0), Vector(0, 0, 1), 48.6), math.radians(-172), math.radians(-90)),
], False)
sketch20.addConstraint([
    Sketcher.Constraint("Coincident", 0, 2, 1, 1),
    Sketcher.Constraint("Coincident", 1, 2, 2, 1),
    Sketcher.Constraint("Coincident", 2, 2, 3, 1),
    Sketcher.Constraint("Coincident", 3, 2, 4, 1),
    Sketcher.Constraint("Tangent", 4, 2, 5, 1),
    Sketcher.Constraint("Coincident", 5, 2, 6, 1),
    Sketcher.Constraint("Coincident", 6, 2, 7, 1),
    Sketcher.Constraint("Tangent", 7, 2, 8, 2),
    Sketcher.Constraint("Coincident", 8, 1, 0, 1),
    Sketcher.Constraint("Coincident", 9, 2, 10, 1),
    Sketcher.Constraint("Coincident", 10, 2, 11, 1),
    Sketcher.Constraint("Coincident", 11, 2, 12, 2),
    Sketcher.Constraint("Coincident", 12, 1, 9, 1),
    Sketcher.Constraint("Horizontal", 0),
    Sketcher.Constraint("Vertical", 1),
    Sketcher.Constraint("Horizontal", 2),
    Sketcher.Constraint("Vertical", 3),
    Sketcher.Constraint("Horizontal", 5),
    Sketcher.Constraint("Vertical", 6),
    Sketcher.Constraint("Horizontal", 7),
    Sketcher.Constraint("Horizontal", 9),
    Sketcher.Constraint("Vertical", 11),
    Sketcher.Constraint("Coincident", 8, 3, 4, 3),
    Sketcher.Constraint("Coincident", 10, 3, 4, 3),
    Sketcher.Constraint("Coincident", 12, 3, 4, 3),
    Sketcher.Constraint("Horizontal", 0, 2, 3, 2),
    Sketcher.Constraint("Horizontal", 8, 1, 9, 2),
    Sketcher.Constraint("Vertical", 7, 2, 10, 2),
    Sketcher.Constraint("DistanceY", 6, 1, 6, 2, 6.0),
    Sketcher.Constraint("DistanceY", 11, 2, 11, 1, 3.0),
    Sketcher.Constraint("DistanceY", 10, 2, 7, 2, 1.5),
    Sketcher.Constraint("DistanceY", 0, 2, -1, 1, 9.0),
    Sketcher.Constraint("DistanceY", 4, 2, -1, 1, 52.0),
    Sketcher.Constraint("DistanceX", 0, 2, 4, 3, 40.0),
    Sketcher.Constraint("Radius", 4, 50.0753),
    Sketcher.Constraint("DistanceX", 5, 1, 5, 2, 3.979),
    Sketcher.Constraint("DistanceY", 1, 1, 1, 2, 14.1505),
    Sketcher.Constraint("DistanceX", 2, 2, -1, 1, 59.963),
])
sketch20.setExpression("Constraints[28]", "Params.sketch20_height")
sketch20.setExpression("Constraints[29]", "Params.sketch20_height2")
pad13 = body.newObject("PartDesign::Pad", "Pad012")
pad13.Profile = sketch20
pad13.setExpression("Length", "Params.pad13_length")
pad13.Reversed = True

sketch21 = body.newObject("Sketcher::SketchObject", "Sketch020")
sketch21.AttachmentSupport = (doc.getObject("YZ_Plane"), [""])
sketch21.MapMode = "FlatFace"
sketch21.AttachmentOffset = App.Placement(Vector(0, 0, 2), App.Rotation())
sketch21.addGeometry([
    Part.ArcOfCircle(Part.Circle(Vector(-10.4, -1.9, 0), Vector(0, 0, 1), 42.6), math.radians(-170), math.radians(-90)),
    Part.LineSegment(Vector(-52.4, -9, 0), Vector(-53.9, -9, 0)),
    Part.ArcOfCircle(Part.Circle(Vector(-10.4, -1.9, 0), Vector(0, 0, 1), 44.1), math.radians(-171), math.radians(-90)),
    Part.LineSegment(Vector(-10.4, -46, 0), Vector(-10.4, -44.5, 0)),
    Part.LineSegment(Vector(-60, 5.2, 0), Vector(-61.5, 5.2, 0)),
    Part.LineSegment(Vector(-61.5, 5.2, 0), Vector(-61.5, -8.7, 0)),
    Part.ArcOfCircle(Part.Circle(Vector(-10.4, -1.9, 0), Vector(0, 0, 1), 51.6), math.radians(-172), math.radians(-90)),
    Part.LineSegment(Vector(-10.4, -53.5, 0), Vector(-6.4, -53.5, 0)),
    Part.LineSegment(Vector(-6.4, -53.5, 0), Vector(-6.4, -52, 0)),
    Part.LineSegment(Vector(-6.4, -52, 0), Vector(-10.4, -52, 0)),
    Part.ArcOfCircle(Part.Circle(Vector(-10.4, -1.9, 0), Vector(0, 0, 1), 50.1), math.radians(-172), math.radians(-90)),
    Part.LineSegment(Vector(-60, -9, 0), Vector(-60, 5.2, 0)),
], False)
sketch21.addConstraint([
    Sketcher.Constraint("Coincident", 0, 1, 1, 1),
    Sketcher.Constraint("Coincident", 1, 2, 2, 1),
    Sketcher.Constraint("Coincident", 2, 2, 3, 1),
    Sketcher.Constraint("Coincident", 3, 2, 0, 2),
    Sketcher.Constraint("Coincident", 4, 2, 5, 1),
    Sketcher.Constraint("Coincident", 5, 2, 6, 1),
    Sketcher.Constraint("Tangent", 6, 2, 7, 1),
    Sketcher.Constraint("Coincident", 7, 2, 8, 1),
    Sketcher.Constraint("Coincident", 8, 2, 9, 1),
    Sketcher.Constraint("Tangent", 9, 2, 10, 2),
    Sketcher.Constraint("Coincident", 10, 1, 11, 1),
    Sketcher.Constraint("Coincident", 11, 2, 4, 1),
    Sketcher.Constraint("Horizontal", 1),
    Sketcher.Constraint("Vertical", 3),
    Sketcher.Constraint("Horizontal", 4),
    Sketcher.Constraint("Vertical", 5),
    Sketcher.Constraint("Horizontal", 7),
    Sketcher.Constraint("Vertical", 8),
    Sketcher.Constraint("Horizontal", 9),
    Sketcher.Constraint("Vertical", 11),
    Sketcher.Constraint("Coincident", 2, 3, 0, 3),
    Sketcher.Constraint("Coincident", 6, 3, 0, 3),
    Sketcher.Constraint("Coincident", 10, 3, 0, 3),
    Sketcher.Constraint("Horizontal", 1, 2, 10, 1),
    Sketcher.Constraint("Vertical", 10, 3, 2, 2),
    Sketcher.Constraint("Equal", 3, 8),
    Sketcher.Constraint("DistanceY", 3, 1, 3, 2, 1.5),
    Sketcher.Constraint("DistanceY", 0, 1, -1, 1, 9.0),
    Sketcher.Constraint("DistanceY", 2, 2, -1, 1, 46.0),
    Sketcher.Constraint("DistanceY", 8, 2, -1, 1, 52.0),
    Sketcher.Constraint("Radius", 0, 42.5752),
    Sketcher.Constraint("DistanceX", 7, 1, 7, 2, 3.979),
    Sketcher.Constraint("DistanceX", 4, 2, 4, 1, 1.5524),
    Sketcher.Constraint("DistanceY", 5, 2, 5, 1, 13.8726),
    Sketcher.Constraint("DistanceX", 10, 1, -1, 1, 59.963),
])
sketch21.setExpression("Constraints[26]", "Params.sketch21_height")
pad14 = body.newObject("PartDesign::Pad", "Pad013")
pad14.Profile = sketch21
pad14.setExpression("Length", "Params.pad14_length")
pad14.Reversed = True

sketch22 = body.newObject("Sketcher::SketchObject", "Sketch021")
sketch22.AttachmentSupport = (doc.getObject("YZ_Plane"), [""])
sketch22.MapMode = "FlatFace"
sketch22.AttachmentOffset = App.Placement(Vector(0, 0, 2), App.Rotation())
add_polygon(sketch22, [(-6, -54), (12, -46), (-6, -46)])
sketch22.addConstraint([
    Sketcher.Constraint("Horizontal", 1),
    Sketcher.Constraint("Vertical", 2),
    Sketcher.Constraint("DistanceY", 2, 2, 2, 1, 7.5),
    Sketcher.Constraint("DistanceY", 0, 2, -1, 1, 46.0),
    Sketcher.Constraint("DistanceX", -1, 1, 0, 2, 11.5),
    Sketcher.Constraint("Angle", 0, Q("22.7206 deg")),
])
sketch22.setExpression("Constraints[5]", "Params.sketch22_height")
pad15 = body.newObject("PartDesign::Pad", "Pad014")
pad15.Profile = sketch22
pad15.setExpression("Length", "Params.pad15_length")
pad15.Reversed = True

sketch23 = body.newObject("Sketcher::SketchObject", "Sketch022")
sketch23.AttachmentSupport = (doc.getObject("YZ_Plane"), [""])
sketch23.MapMode = "FlatFace"
sketch23.AttachmentOffset = App.Placement(Vector(0, 0, -6), App.Rotation())
sketch23.addGeometry([
    Part.Circle(Vector(-7.3, -22.1, 0), Vector(0, 0, 1), 1.5),
    Part.Circle(Vector(8.4, -5.9, 0), Vector(0, 0, 1), 1.5),
], False)
sketch23.addConstraint([
    Sketcher.Constraint("Equal", 0, 1),
    Sketcher.Constraint("Diameter", 0, 3.0),
    Sketcher.Constraint("DistanceY", 0, 3, -1, 1, 22.118),
    Sketcher.Constraint("DistanceX", -1, 1, 1, 3, 8.448),
    Sketcher.Constraint("DistanceY", 1, 3, -1, 1, 5.882),
    Sketcher.Constraint("DistanceX", 0, 3, -1, 1, 7.3383),
])
sketch23.setExpression("Constraints[1]", "Params.sketch23_diameter")
pocket8 = body.newObject("PartDesign::Pocket", "Pocket007")
pocket8.Profile = sketch23
pocket8.Type = "ThroughAll"
pocket8.Reversed = True

sketch24 = body.newObject("Sketcher::SketchObject", "Sketch023")
sketch24.AttachmentSupport = (doc.getObject("YZ_Plane"), [""])
sketch24.MapMode = "FlatFace"
sketch24.AttachmentOffset = App.Placement(Vector(0, 0, 2), App.Rotation())
sketch24.addGeometry(Part.Circle(Vector(-10.4, -1.9, 0), Vector(0, 0, 1), 2), False)
sketch24.addConstraint([
    Sketcher.Constraint("Diameter", 0, 4.0),
    Sketcher.Constraint("DistanceX", 0, 3, -1, 1, 10.3902),
    Sketcher.Constraint("DistanceY", 0, 3, -1, 1, 1.9248),
])
sketch24.setExpression("Constraints[0]", "Params.sketch24_diameter")
pocket9 = body.newObject("PartDesign::Pocket", "Pocket008")
pocket9.Profile = sketch24
pocket9.Type = "ThroughAll"

sketch25 = body.newObject("Sketcher::SketchObject", "Sketch024")
sketch25.AttachmentSupport = (doc.getObject("YZ_Plane"), [""])
sketch25.MapMode = "FlatFace"
sketch25.AttachmentOffset = App.Placement(Vector(0, 0, -6), App.Rotation())
sketch25.addGeometry([
    Part.ArcOfCircle(Part.Circle(Vector(-10.4, -1.9, 0), Vector(0, 0, 1), 2), math.radians(-90), math.radians(90)),
    Part.LineSegment(Vector(-10.4, 0.1, 0), Vector(-10.4, 5.2, 0)),
    Part.LineSegment(Vector(-10.4, 5.2, 0), Vector(-4.5, 6, 0)),
    Part.LineSegment(Vector(-4.5, 6, 0), Vector(-4.5, -5.4, 0)),
    Part.LineSegment(Vector(-4.5, -5.4, 0), Vector(-10.4, -5.4, 0)),
    Part.LineSegment(Vector(-10.4, -5.4, 0), Vector(-10.4, -3.9, 0)),
], False)
sketch25.addConstraint([
    Sketcher.Constraint("Coincident", 0, 2, 1, 1),
    Sketcher.Constraint("Coincident", 1, 2, 2, 1),
    Sketcher.Constraint("Coincident", 2, 2, 3, 1),
    Sketcher.Constraint("Coincident", 3, 2, 4, 1),
    Sketcher.Constraint("Coincident", 4, 2, 5, 1),
    Sketcher.Constraint("Coincident", 5, 2, 0, 1),
    Sketcher.Constraint("Vertical", 1),
    Sketcher.Constraint("Vertical", 3),
    Sketcher.Constraint("Horizontal", 4),
    Sketcher.Constraint("Vertical", 5),
    Sketcher.Constraint("Vertical", 1, 2, 4, 2),
    Sketcher.Constraint("Radius", 0, 2.0),
    Sketcher.Constraint("DistanceY", -1, 1, 2, 2, 6.0),
    Sketcher.Constraint("DistanceX", 2, 2, -1, 1, 4.5),
    Sketcher.Constraint("DistanceY", 3, 2, 3, 1, 11.412),
    Sketcher.Constraint("DistanceY", 5, 1, 5, 2, 1.487),
    Sketcher.Constraint("DistanceX", 4, 2, 4, 1, 5.8902),
    Sketcher.Constraint("DistanceY", 1, 1, 1, 2, 5.0753),
    Sketcher.Constraint("DistanceX", 0, 3, -1, 1, 10.3902),
])
sketch25.setExpression("Constraints[11]", "Params.sketch25_radius")
pocket10 = body.newObject("PartDesign::Pocket", "Pocket009")
pocket10.Profile = sketch25
pocket10.setExpression("Length", "Params.pocket10_length")
pocket10.Reversed = True

sketch26 = body.newObject("Sketcher::SketchObject", "Sketch025")
sketch26.AttachmentSupport = (doc.getObject("YZ_Plane"), [""])
sketch26.MapMode = "FlatFace"
sketch26.AttachmentOffset = App.Placement(Vector(0, 0, -4), App.Rotation())
add_polygon(sketch26, [(-10, -9), (-50, -9), (-50, 5), (-10, 5)])
sketch26.addConstraint([
    Sketcher.Constraint("Horizontal", 0),
    Sketcher.Constraint("Vertical", 1),
    Sketcher.Constraint("Horizontal", 2),
    Sketcher.Constraint("Vertical", 3),
    Sketcher.Constraint("DistanceX", 0, 2, 0, 1, 40.0),
    Sketcher.Constraint("DistanceY", 0, 2, -1, 1, 9.0),
    Sketcher.Constraint("DistanceY", 1, 1, 1, 2, 14.1505),
    Sketcher.Constraint("DistanceX", 0, 2, -1, 1, 50.3902),
])
sketch26.setExpression("Constraints[8]", "Params.sketch26_width")
pocket11 = body.newObject("PartDesign::Pocket", "Pocket010")
pocket11.Profile = sketch26
pocket11.setExpression("Length", "Params.pocket11_length")
pocket11.Reversed = True

sketch27 = body.newObject("Sketcher::SketchObject", "Sketch026")
sketch27.AttachmentSupport = (doc.getObject("YZ_Plane"), [""])
sketch27.MapMode = "FlatFace"
sketch27.AttachmentOffset = App.Placement(Vector(0, 0, -6), App.Rotation())
add_polygon(sketch27, [(-10, -9), (-10, 6), (-4, 6), (-4, -9)])
sketch27.addConstraint([
    Sketcher.Constraint("Vertical", 0),
    Sketcher.Constraint("Horizontal", 1),
    Sketcher.Constraint("Vertical", 2),
    Sketcher.Constraint("Horizontal", 3),
    Sketcher.Constraint("DistanceY", 0, 1, 0, 2, 15.0),
    Sketcher.Constraint("DistanceY", -1, 1, 0, 2, 6.0),
    Sketcher.Constraint("DistanceX", 1, 2, -1, 1, 4.5),
    Sketcher.Constraint("DistanceX", 1, 1, 1, 2, 5.8902),
])
sketch27.setExpression("Constraints[8]", "Params.sketch27_height")
pocket12 = body.newObject("PartDesign::Pocket", "Pocket011")
pocket12.Profile = sketch27
pocket12.setExpression("Length", "Params.pocket12_length")
pocket12.Reversed = True

doc.recompute()
